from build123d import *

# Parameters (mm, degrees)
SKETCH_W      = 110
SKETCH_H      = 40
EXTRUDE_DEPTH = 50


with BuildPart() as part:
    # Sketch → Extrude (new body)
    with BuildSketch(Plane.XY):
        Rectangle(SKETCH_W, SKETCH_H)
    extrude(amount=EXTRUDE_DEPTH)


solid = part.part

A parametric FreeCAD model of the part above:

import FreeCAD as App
import Part
import Sketcher
Q = App.Units.Quantity

doc = App.newDocument("Part")
params = doc.addObject("Spreadsheet::Sheet", "Params")
for row, (alias, value) in enumerate([
    ("sketch1_width", "110 mm"),
    ("sketch1_height", "40 mm"),
    ("pad1_length", "50 mm"),
], start=1):
    params.set(f"A{row}", alias)
    params.set(f"B{row}", "=" + value)
    params.setAlias(f"B{row}", alias)

body = doc.addObject("PartDesign::Body", "Body")

# Sketch on XY plane
sketch1 = body.newObject("Sketcher::SketchObject", "Sketch")
sketch1.AttachmentSupport = (doc.getObject("XY_Plane"), [""])
sketch1.MapMode = "FlatFace"
sketch1.addGeometry(Part.LineSegment(App.Vector(-55, 20, 0), App.Vector(-55, -20, 0)), False)
sketch1.addGeometry(Part.LineSegment(App.Vector(-55, -20, 0), App.Vector(55, -20, 0)), False)
sketch1.addGeometry(Part.LineSegment(App.Vector(55, -20, 0), App.Vector(55, 20, 0)), False)
sketch1.addGeometry(Part.LineSegment(App.Vector(55, 20, 0), App.Vector(-55, 20, 0)), False)
sketch1.addConstraint(Sketcher.Constraint("Coincident", 0, 2, 1, 1))
sketch1.addConstraint(Sketcher.Constraint("Coincident", 1, 2, 2, 1))
sketch1.addConstraint(Sketcher.Constraint("Coincident", 2, 2, 3, 1))
sketch1.addConstraint(Sketcher.Constraint("Coincident", 3, 2, 0, 1))
sketch1.addConstraint(Sketcher.Constraint("Vertical", 0))
sketch1.addConstraint(Sketcher.Constraint("Horizontal", 1))
sketch1.addConstraint(Sketcher.Constraint("Vertical", 2))
sketch1.addConstraint(Sketcher.Constraint("Horizontal", 3))
sketch1.addConstraint(Sketcher.Constraint("Symmetric", 0, 2, 2, 2, -1, 1))
sketch1.addConstraint(Sketcher.Constraint("DistanceX", 1, 1, 1, 2, Q("110 mm")))
sketch1.addConstraint(Sketcher.Constraint("DistanceY", 0, 2, 0, 1, Q("40 mm")))
sketch1.setExpression("Constraints[9]", "Params.sketch1_width")
sketch1.setExpression("Constraints[10]", "Params.sketch1_height")
pad1 = body.newObject("PartDesign::Pad", "Pad")
pad1.Profile = sketch1
pad1.setExpression("Length", "Params.pad1_length")

doc.recompute()
